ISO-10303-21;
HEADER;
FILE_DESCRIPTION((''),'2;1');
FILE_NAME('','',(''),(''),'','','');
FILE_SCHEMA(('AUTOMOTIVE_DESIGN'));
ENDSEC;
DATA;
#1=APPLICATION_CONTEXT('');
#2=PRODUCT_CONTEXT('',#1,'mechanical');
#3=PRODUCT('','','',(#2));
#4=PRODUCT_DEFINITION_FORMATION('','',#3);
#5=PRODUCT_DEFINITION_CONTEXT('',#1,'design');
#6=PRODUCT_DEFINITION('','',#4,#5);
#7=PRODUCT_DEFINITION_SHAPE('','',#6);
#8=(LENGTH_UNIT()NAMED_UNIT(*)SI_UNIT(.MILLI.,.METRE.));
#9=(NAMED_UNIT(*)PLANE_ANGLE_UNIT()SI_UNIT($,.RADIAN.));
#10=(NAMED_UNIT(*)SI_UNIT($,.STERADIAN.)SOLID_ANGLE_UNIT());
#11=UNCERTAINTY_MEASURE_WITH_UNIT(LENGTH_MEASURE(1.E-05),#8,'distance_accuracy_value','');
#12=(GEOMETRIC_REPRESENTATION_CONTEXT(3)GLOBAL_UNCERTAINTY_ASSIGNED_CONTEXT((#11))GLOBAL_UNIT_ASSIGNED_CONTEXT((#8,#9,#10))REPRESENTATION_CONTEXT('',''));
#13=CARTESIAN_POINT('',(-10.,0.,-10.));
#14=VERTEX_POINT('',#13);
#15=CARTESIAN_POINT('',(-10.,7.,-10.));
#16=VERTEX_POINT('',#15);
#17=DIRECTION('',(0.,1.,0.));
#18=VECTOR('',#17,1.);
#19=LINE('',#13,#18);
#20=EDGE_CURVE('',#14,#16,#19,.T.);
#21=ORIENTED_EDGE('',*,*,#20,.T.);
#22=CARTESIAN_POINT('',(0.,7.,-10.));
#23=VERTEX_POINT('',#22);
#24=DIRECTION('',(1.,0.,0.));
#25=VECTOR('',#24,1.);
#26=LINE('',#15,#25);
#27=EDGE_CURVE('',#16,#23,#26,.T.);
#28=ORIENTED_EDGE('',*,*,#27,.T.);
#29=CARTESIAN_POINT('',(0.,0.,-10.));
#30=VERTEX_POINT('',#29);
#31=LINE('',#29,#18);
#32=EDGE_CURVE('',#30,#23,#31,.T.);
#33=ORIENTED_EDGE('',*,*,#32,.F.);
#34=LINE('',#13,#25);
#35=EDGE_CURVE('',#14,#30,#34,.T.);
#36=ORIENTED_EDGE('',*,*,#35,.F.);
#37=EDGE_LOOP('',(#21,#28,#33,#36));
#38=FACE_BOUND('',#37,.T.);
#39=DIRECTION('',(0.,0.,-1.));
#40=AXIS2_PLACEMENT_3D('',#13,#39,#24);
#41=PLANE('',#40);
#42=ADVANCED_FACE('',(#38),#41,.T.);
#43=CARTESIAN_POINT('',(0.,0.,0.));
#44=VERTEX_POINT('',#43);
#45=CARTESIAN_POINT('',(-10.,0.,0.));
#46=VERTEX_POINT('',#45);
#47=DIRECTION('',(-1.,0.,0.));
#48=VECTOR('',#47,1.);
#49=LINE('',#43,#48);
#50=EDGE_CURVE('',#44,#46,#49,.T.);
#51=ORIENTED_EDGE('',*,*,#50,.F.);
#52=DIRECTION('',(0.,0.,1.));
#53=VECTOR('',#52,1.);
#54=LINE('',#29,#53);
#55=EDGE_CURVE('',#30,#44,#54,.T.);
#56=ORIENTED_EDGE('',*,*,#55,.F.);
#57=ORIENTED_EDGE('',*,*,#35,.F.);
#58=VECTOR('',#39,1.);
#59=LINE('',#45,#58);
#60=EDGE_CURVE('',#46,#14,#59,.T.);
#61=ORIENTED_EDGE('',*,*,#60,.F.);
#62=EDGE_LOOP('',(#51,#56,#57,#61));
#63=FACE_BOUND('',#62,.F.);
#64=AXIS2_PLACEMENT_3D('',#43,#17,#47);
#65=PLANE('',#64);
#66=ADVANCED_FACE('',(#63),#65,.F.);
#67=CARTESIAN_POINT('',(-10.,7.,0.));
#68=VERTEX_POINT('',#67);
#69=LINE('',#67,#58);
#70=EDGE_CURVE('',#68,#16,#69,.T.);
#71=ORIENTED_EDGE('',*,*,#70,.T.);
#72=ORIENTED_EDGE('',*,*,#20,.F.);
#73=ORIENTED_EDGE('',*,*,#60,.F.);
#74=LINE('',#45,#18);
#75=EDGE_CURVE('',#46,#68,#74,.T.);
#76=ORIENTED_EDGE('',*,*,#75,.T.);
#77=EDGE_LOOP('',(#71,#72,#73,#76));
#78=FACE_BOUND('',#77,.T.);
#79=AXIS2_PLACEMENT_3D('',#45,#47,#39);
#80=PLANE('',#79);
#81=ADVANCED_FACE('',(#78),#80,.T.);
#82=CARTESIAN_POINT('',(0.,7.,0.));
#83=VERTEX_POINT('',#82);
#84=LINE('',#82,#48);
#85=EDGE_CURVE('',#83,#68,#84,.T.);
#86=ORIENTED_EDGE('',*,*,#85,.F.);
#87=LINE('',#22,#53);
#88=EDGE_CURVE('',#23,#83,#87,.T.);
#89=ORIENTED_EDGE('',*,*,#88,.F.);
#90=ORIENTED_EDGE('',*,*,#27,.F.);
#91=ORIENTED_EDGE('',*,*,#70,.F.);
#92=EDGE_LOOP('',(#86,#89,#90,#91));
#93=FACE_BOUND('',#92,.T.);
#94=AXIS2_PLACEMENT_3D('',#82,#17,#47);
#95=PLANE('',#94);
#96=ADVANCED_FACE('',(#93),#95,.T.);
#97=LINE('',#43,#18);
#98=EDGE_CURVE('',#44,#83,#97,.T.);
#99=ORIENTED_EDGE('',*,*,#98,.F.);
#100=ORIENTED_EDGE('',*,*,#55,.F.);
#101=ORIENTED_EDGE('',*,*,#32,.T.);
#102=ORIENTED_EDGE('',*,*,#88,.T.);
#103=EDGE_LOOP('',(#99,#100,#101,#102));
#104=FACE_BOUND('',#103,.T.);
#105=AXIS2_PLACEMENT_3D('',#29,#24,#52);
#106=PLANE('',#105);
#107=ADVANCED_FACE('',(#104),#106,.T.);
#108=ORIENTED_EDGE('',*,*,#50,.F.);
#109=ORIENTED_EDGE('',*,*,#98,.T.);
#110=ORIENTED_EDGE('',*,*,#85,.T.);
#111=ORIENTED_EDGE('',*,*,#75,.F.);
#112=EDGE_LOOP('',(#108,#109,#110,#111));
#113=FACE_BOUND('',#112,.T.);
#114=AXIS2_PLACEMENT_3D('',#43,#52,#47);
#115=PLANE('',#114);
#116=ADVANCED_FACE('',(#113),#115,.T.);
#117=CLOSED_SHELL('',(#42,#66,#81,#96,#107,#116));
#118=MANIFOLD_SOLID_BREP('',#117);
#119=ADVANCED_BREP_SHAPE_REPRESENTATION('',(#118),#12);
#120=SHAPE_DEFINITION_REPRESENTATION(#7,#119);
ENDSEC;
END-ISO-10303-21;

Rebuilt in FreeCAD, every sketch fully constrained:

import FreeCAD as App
import Part
import Sketcher
from FreeCAD import Vector


def add_polygon(sketch, points):
    """Adds a closed chain of lines whose ends are joined by coincident constraints."""
    first, n = sketch.GeometryCount, len(points)
    for a, b in zip(points, points[1:] + points[:1]):
        sketch.addGeometry(Part.LineSegment(App.Vector(*a, 0), App.Vector(*b, 0)), False)
    for i in range(n):
        sketch.addConstraint(Sketcher.Constraint("Coincident", first + i, 2, first + (i + 1) % n, 1))

doc = App.newDocument("Part")
body = doc.addObject("PartDesign::Body", "Body")

# Sketch on XZ plane
sketch1 = doc.addObject("Sketcher::SketchObject", "Sketch")
body.addObject(sketch1)
sketch1.AttachmentSupport = (doc.XZ_Plane, [""])
sketch1.MapMode = "FlatFace"
add_polygon(sketch1, [(-10, 0), (0, 0), (0, -10), (-10, -10)])  # lines 0-3
sketch1.addConstraint([
    Sketcher.Constraint("Horizontal", 0),
    Sketcher.Constraint("Vertical", 1),
    Sketcher.Constraint("Horizontal", 2),
    Sketcher.Constraint("Vertical", 3),
    Sketcher.Constraint("Coincident", 0, 2, -1, 1),
    Sketcher.Constraint("Equal", 2, 1),
    Sketcher.Constraint("DistanceX", 0, 1, 0, 2, 10.0),
])
pad1 = doc.addObject("PartDesign::Pad", "Pad")
body.addObject(pad1)
pad1.Profile = sketch1
pad1.Length = 7
pad1.Reversed = True

doc.recompute()
